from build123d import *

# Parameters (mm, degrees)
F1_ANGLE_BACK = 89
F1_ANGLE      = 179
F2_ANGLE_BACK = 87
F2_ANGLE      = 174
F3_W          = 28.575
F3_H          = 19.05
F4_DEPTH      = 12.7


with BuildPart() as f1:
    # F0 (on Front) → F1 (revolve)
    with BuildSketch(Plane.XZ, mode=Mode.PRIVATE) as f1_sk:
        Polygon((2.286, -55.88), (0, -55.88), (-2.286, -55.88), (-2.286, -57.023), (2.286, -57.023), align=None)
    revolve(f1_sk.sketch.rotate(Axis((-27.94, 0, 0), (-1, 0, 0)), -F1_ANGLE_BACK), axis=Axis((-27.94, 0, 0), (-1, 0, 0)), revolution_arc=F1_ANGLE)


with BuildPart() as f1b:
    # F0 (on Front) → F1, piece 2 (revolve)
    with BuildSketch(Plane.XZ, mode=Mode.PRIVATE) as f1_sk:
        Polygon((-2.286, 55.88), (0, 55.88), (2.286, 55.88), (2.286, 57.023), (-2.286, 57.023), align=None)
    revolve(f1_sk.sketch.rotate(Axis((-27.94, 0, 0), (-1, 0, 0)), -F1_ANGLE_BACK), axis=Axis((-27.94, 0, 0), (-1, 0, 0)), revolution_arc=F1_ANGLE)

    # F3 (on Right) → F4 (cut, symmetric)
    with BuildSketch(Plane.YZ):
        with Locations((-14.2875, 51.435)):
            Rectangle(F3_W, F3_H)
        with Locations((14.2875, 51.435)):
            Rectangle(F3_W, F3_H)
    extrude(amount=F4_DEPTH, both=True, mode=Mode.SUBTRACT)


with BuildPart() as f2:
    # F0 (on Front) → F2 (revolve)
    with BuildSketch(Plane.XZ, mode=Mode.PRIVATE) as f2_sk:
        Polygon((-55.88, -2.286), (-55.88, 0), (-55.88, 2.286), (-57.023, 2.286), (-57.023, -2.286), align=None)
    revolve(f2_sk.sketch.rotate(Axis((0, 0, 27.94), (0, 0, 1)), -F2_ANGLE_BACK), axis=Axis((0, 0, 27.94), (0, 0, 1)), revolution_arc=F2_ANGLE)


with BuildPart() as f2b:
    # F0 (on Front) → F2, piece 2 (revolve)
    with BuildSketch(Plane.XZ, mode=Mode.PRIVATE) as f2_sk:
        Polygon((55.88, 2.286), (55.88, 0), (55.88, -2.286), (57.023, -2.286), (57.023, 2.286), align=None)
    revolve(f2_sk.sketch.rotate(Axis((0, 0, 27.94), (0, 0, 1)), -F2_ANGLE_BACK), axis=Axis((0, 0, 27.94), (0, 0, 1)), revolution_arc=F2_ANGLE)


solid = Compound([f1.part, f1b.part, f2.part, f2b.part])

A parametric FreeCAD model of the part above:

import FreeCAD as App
import Part
import Sketcher

V = App.Vector
Q = App.Units.Quantity

doc = App.newDocument("Part")
body = doc.addObject("PartDesign::Body", "Body")

# Sketch on an angled plane
sketch1 = body.newObject("Sketcher::SketchObject", "Sketch")
sketch1.Placement = App.Placement(V(0, 0, 0), App.Rotation(V(1, 0, 0), V(0, -0.999847695, 0.017452406), V(0, -0.017452406, -0.999847695), "ZXY"))
sketch1.addGeometry([
    Part.LineSegment(V(2.3, -55.9, 0), V(-2.3, -55.9, 0)),
    Part.LineSegment(V(-2.3, -55.9, 0), V(-2.3, -57, 0)),
    Part.LineSegment(V(-2.3, -57, 0), V(2.3, -57, 0)),
    Part.LineSegment(V(2.3, -57, 0), V(2.3, -55.9, 0)),
], False)
sketch1.addConstraint([
    Sketcher.Constraint("Coincident", 0, 2, 1, 1),
    Sketcher.Constraint("Coincident", 1, 2, 2, 1),
    Sketcher.Constraint("Coincident", 2, 2, 3, 1),
    Sketcher.Constraint("Coincident", 3, 2, 0, 1),
    Sketcher.Constraint("Horizontal", 0),
    Sketcher.Constraint("Vertical", 1),
    Sketcher.Constraint("Horizontal", 2),
    Sketcher.Constraint("Vertical", 3),
    Sketcher.Constraint("DistanceX", 0, 2, 0, 1, Q("0.18 in")),
    Sketcher.Constraint("DistanceY", 0, 2, -1, 1, Q("2.2 in")),
    Sketcher.Constraint("DistanceY", 1, 2, 1, 1, Q("0.045 in")),
    Sketcher.Constraint("DistanceX", 0, 2, -1, 1, Q("0.09 in")),
])
revolution = body.newObject("PartDesign::Revolution", "Revolution")
revolution.Profile = sketch1
revolution.ReferenceAxis = (sketch1, ["H_Axis"])
revolution.Angle = 179
revolution.Reversed = True
body2 = doc.addObject("PartDesign::Body", "Body001")
body2.AllowCompound = True

# Sketch on an angled plane
sketch2 = body2.newObject("Sketcher::SketchObject", "Sketch001")
sketch2.Placement = App.Placement(V(0, 0, 0), App.Rotation(V(1, 0, 0), V(0, -0.999847695, 0.017452406), V(0, -0.017452406, -0.999847695), "ZXY"))
sketch2.addGeometry([
    Part.LineSegment(V(-2.3, 55.9, 0), V(2.3, 55.9, 0)),
    Part.LineSegment(V(2.3, 55.9, 0), V(2.3, 57, 0)),
    Part.LineSegment(V(2.3, 57, 0), V(-2.3, 57, 0)),
    Part.LineSegment(V(-2.3, 57, 0), V(-2.3, 55.9, 0)),
], False)
sketch2.addConstraint([
    Sketcher.Constraint("Coincident", 0, 2, 1, 1),
    Sketcher.Constraint("Coincident", 1, 2, 2, 1),
    Sketcher.Constraint("Coincident", 2, 2, 3, 1),
    Sketcher.Constraint("Coincident", 3, 2, 0, 1),
    Sketcher.Constraint("Horizontal", 0),
    Sketcher.Constraint("Vertical", 1),
    Sketcher.Constraint("Horizontal", 2),
    Sketcher.Constraint("Vertical", 3),
    Sketcher.Constraint("DistanceX", 0, 1, 0, 2, Q("0.18 in")),
    Sketcher.Constraint("DistanceY", -1, 1, 0, 2, Q("2.2 in")),
    Sketcher.Constraint("DistanceY", 1, 1, 1, 2, Q("0.045 in")),
    Sketcher.Constraint("DistanceX", -1, 1, 0, 2, Q("0.09 in")),
])
revolution2 = body2.newObject("PartDesign::Revolution", "Revolution001")
revolution2.Profile = sketch2
revolution2.ReferenceAxis = (sketch2, ["H_Axis"])
revolution2.Angle = 179
revolution2.Reversed = True

# Sketch on YZ plane
sketch3 = body2.newObject("Sketcher::SketchObject", "Sketch002")
sketch3.AttachmentSupport = (doc.getObject("YZ_Plane001"), [""])
sketch3.MapMode = "FlatFace"
sketch3.addGeometry([
    Part.LineSegment(V(-29, 61, 0), V(-29, 42, 0)),
    Part.LineSegment(V(-29, 42, 0), V(29, 42, 0)),
    Part.LineSegment(V(29, 42, 0), V(29, 61, 0)),
    Part.LineSegment(V(29, 61, 0), V(-29, 61, 0)),
], False)
sketch3.addConstraint([
    Sketcher.Constraint("Coincident", 0, 2, 1, 1),
    Sketcher.Constraint("Coincident", 1, 2, 2, 1),
    Sketcher.Constraint("Coincident", 2, 2, 3, 1),
    Sketcher.Constraint("Coincident", 3, 2, 0, 1),
    Sketcher.Constraint("Vertical", 0),
    Sketcher.Constraint("Horizontal", 1),
    Sketcher.Constraint("Vertical", 2),
    Sketcher.Constraint("Horizontal", 3),
    Sketcher.Constraint("DistanceX", 1, 1, 1, 2, Q("2.25 in")),
    Sketcher.Constraint("DistanceY", 0, 2, 0, 1, Q("0.75 in")),
    Sketcher.Constraint("DistanceY", -1, 1, 2, 2, Q("2.4 in")),
    Sketcher.Constraint("DistanceX", 0, 2, -1, 1, Q("1.125 in")),
])
pocket1 = body2.newObject("PartDesign::Pocket", "Pocket")
pocket1.Profile = sketch3
pocket1.Length = Q("1 in")
pocket1.Midplane = True
body3 = doc.addObject("PartDesign::Body", "Body002")

# Sketch on an angled plane
sketch4 = body3.newObject("Sketcher::SketchObject", "Sketch003")
sketch4.Placement = App.Placement(V(0, 0, 0), App.Rotation(V(0.052335956, -0.998629535, 0), V(0, 0, 1), V(-0.998629535, -0.052335956, 0), "ZXY"))
sketch4.addGeometry([
    Part.LineSegment(V(-55.9, -2.3, 0), V(-55.9, 2.3, 0)),
    Part.LineSegment(V(-55.9, 2.3, 0), V(-57, 2.3, 0)),
    Part.LineSegment(V(-57, 2.3, 0), V(-57, -2.3, 0)),
    Part.LineSegment(V(-57, -2.3, 0), V(-55.9, -2.3, 0)),
], False)
sketch4.addConstraint([
    Sketcher.Constraint("Coincident", 0, 2, 1, 1),
    Sketcher.Constraint("Coincident", 1, 2, 2, 1),
    Sketcher.Constraint("Coincident", 2, 2, 3, 1),
    Sketcher.Constraint("Coincident", 3, 2, 0, 1),
    Sketcher.Constraint("Vertical", 0),
    Sketcher.Constraint("Horizontal", 1),
    Sketcher.Constraint("Vertical", 2),
    Sketcher.Constraint("Horizontal", 3),
    Sketcher.Constraint("DistanceY", 0, 1, 0, 2, Q("0.18 in")),
    Sketcher.Constraint("DistanceX", 0, 2, -1, 1, Q("2.2 in")),
    Sketcher.Constraint("DistanceX", 1, 2, 1, 1, Q("0.045 in")),
    Sketcher.Constraint("DistanceY", -1, 1, 0, 2, Q("0.09 in")),
])
revolution3 = body3.newObject("PartDesign::Revolution", "Revolution002")
revolution3.Profile = sketch4
revolution3.ReferenceAxis = (sketch4, ["V_Axis"])
revolution3.Angle = 174
body4 = doc.addObject("PartDesign::Body", "Body003")

# Sketch on an angled plane
sketch5 = body4.newObject("Sketcher::SketchObject", "Sketch004")
sketch5.Placement = App.Placement(V(0, 0, 0), App.Rotation(V(0.052335956, -0.998629535, 0), V(0, 0, 1), V(-0.998629535, -0.052335956, 0), "ZXY"))
sketch5.addGeometry([
    Part.LineSegment(V(55.9, 2.3, 0), V(55.9, -2.3, 0)),
    Part.LineSegment(V(55.9, -2.3, 0), V(57, -2.3, 0)),
    Part.LineSegment(V(57, -2.3, 0), V(57, 2.3, 0)),
    Part.LineSegment(V(57, 2.3, 0), V(55.9, 2.3, 0)),
], False)
sketch5.addConstraint([
    Sketcher.Constraint("Coincident", 0, 2, 1, 1),
    Sketcher.Constraint("Coincident", 1, 2, 2, 1),
    Sketcher.Constraint("Coincident", 2, 2, 3, 1),
    Sketcher.Constraint("Coincident", 3, 2, 0, 1),
    Sketcher.Constraint("Vertical", 0),
    Sketcher.Constraint("Horizontal", 1),
    Sketcher.Constraint("Vertical", 2),
    Sketcher.Constraint("Horizontal", 3),
    Sketcher.Constraint("DistanceY", 0, 2, 0, 1, Q("0.18 in")),
    Sketcher.Constraint("DistanceX", -1, 1, 0, 2, Q("2.2 in")),
    Sketcher.Constraint("DistanceX", 1, 1, 1, 2, Q("0.045 in")),
    Sketcher.Constraint("DistanceY", 0, 2, -1, 1, Q("0.09 in")),
])
revolution4 = body4.newObject("PartDesign::Revolution", "Revolution003")
revolution4.Profile = sketch5
revolution4.ReferenceAxis = (sketch5, ["V_Axis"])
revolution4.Angle = 174

doc.recompute()
